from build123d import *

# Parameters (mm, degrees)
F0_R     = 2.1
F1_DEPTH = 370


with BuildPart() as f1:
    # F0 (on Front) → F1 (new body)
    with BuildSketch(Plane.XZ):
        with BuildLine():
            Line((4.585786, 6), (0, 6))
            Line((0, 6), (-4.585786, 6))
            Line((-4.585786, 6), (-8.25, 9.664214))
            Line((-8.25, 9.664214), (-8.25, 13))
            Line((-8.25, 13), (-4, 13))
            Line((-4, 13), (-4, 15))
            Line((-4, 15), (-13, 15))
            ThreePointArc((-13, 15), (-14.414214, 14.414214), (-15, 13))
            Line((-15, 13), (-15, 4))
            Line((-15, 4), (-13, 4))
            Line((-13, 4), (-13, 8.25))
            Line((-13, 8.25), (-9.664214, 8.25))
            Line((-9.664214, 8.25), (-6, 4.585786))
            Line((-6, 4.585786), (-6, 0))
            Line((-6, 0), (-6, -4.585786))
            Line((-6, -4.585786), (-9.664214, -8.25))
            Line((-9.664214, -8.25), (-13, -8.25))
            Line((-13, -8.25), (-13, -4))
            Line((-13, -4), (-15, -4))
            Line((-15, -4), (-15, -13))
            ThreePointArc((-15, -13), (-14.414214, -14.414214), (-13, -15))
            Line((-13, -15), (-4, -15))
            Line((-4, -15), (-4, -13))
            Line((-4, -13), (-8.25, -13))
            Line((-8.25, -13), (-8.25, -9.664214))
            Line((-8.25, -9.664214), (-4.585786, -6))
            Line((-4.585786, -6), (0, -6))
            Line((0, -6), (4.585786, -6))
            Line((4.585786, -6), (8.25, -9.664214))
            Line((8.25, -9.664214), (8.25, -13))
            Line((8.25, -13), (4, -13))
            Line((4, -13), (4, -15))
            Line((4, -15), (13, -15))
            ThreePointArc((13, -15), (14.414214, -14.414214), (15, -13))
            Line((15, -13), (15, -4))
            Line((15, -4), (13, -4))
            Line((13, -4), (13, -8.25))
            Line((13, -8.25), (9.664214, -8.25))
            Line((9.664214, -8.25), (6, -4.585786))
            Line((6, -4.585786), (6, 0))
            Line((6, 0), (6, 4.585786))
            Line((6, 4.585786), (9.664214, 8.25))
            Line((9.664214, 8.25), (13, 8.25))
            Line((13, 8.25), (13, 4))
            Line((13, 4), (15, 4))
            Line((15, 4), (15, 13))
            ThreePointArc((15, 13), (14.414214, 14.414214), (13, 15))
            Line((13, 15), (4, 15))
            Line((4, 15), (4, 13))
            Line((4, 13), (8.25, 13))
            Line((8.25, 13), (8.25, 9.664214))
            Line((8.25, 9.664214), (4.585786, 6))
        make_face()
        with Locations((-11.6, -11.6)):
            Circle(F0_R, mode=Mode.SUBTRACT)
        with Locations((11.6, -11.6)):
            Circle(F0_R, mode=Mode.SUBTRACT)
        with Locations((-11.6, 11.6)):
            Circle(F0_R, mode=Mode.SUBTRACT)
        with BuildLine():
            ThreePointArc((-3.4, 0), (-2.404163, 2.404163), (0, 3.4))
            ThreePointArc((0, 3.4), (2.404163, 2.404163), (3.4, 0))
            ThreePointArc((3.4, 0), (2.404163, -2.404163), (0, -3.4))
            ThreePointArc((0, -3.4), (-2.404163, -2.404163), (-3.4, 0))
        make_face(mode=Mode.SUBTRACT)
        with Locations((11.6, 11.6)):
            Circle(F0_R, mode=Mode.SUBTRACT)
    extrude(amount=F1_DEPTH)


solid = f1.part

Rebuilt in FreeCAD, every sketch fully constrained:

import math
import FreeCAD as App
import Part
import Sketcher
from FreeCAD import Vector
Q = App.Units.Quantity

doc = App.newDocument("Part")
body = doc.addObject("PartDesign::Body", "Body")

sketch1 = doc.addObject("Sketcher::SketchObject", "Sketch")
body.addObject(sketch1)
sketch1.AttachmentSupport = (doc.XZ_Plane, [""])
sketch1.MapMode = "FlatFace"
sketch1.addGeometry([
    Part.LineSegment(Vector(4.585786, 6, 0), Vector(-4.585786, 6, 0)),
    Part.LineSegment(Vector(-4.585786, 6, 0), Vector(-8.25, 9.664214, 0)),
    Part.LineSegment(Vector(-8.25, 9.664214, 0), Vector(-8.25, 13, 0)),
    Part.LineSegment(Vector(-8.25, 13, 0), Vector(-4, 13, 0)),
    Part.LineSegment(Vector(-4, 13, 0), Vector(-4, 15, 0)),
    Part.LineSegment(Vector(-4, 15, 0), Vector(-13, 15, 0)),
    Part.ArcOfCircle(Part.Circle(Vector(-13.000001, 13.000001, 0), Vector(0, 0, 1), 1.999999), math.radians(89.999957), math.radians(180.000043)),
    Part.LineSegment(Vector(-15, 13, 0), Vector(-15, 4, 0)),
    Part.LineSegment(Vector(-15, 4, 0), Vector(-13, 4, 0)),
    Part.LineSegment(Vector(-13, 4, 0), Vector(-13, 8.25, 0)),
    Part.LineSegment(Vector(-13, 8.25, 0), Vector(-9.664214, 8.25, 0)),
    Part.LineSegment(Vector(-9.664214, 8.25, 0), Vector(-6, 4.585786, 0)),
    Part.LineSegment(Vector(-6, 4.585786, 0), Vector(-6, -4.585786, 0)),
    Part.LineSegment(Vector(-6, -4.585786, 0), Vector(-9.664214, -8.25, 0)),
    Part.LineSegment(Vector(-9.664214, -8.25, 0), Vector(-13, -8.25, 0)),
    Part.LineSegment(Vector(-13, -8.25, 0), Vector(-13, -4, 0)),
    Part.LineSegment(Vector(-13, -4, 0), Vector(-15, -4, 0)),
    Part.LineSegment(Vector(-15, -4, 0), Vector(-15, -13, 0)),
    Part.ArcOfCircle(Part.Circle(Vector(-13.000001, -13.000001, 0), Vector(0, 0, 1), 1.999999), math.radians(179.999957), math.radians(270.000043)),
    Part.LineSegment(Vector(-13, -15, 0), Vector(-4, -15, 0)),
    Part.LineSegment(Vector(-4, -15, 0), Vector(-4, -13, 0)),
    Part.LineSegment(Vector(-4, -13, 0), Vector(-8.25, -13, 0)),
    Part.LineSegment(Vector(-8.25, -13, 0), Vector(-8.25, -9.664214, 0)),
    Part.LineSegment(Vector(-8.25, -9.664214, 0), Vector(-4.585786, -6, 0)),
    Part.LineSegment(Vector(-4.585786, -6, 0), Vector(4.585786, -6, 0)),
    Part.LineSegment(Vector(4.585786, -6, 0), Vector(8.25, -9.664214, 0)),
    Part.LineSegment(Vector(8.25, -9.664214, 0), Vector(8.25, -13, 0)),
    Part.LineSegment(Vector(8.25, -13, 0), Vector(4, -13, 0)),
    Part.LineSegment(Vector(4, -13, 0), Vector(4, -15, 0)),
    Part.LineSegment(Vector(4, -15, 0), Vector(13, -15, 0)),
    Part.ArcOfCircle(Part.Circle(Vector(13.000001, -13.000001, 0), Vector(0, 0, 1), 1.999999), math.radians(-90.000043), math.radians(0.000043)),
    Part.LineSegment(Vector(15, -13, 0), Vector(15, -4, 0)),
    Part.LineSegment(Vector(15, -4, 0), Vector(13, -4, 0)),
    Part.LineSegment(Vector(13, -4, 0), Vector(13, -8.25, 0)),
    Part.LineSegment(Vector(13, -8.25, 0), Vector(9.664214, -8.25, 0)),
    Part.LineSegment(Vector(9.664214, -8.25, 0), Vector(6, -4.585786, 0)),
    Part.LineSegment(Vector(6, -4.585786, 0), Vector(6, 4.585786, 0)),
    Part.LineSegment(Vector(6, 4.585786, 0), Vector(9.664214, 8.25, 0)),
    Part.LineSegment(Vector(9.664214, 8.25, 0), Vector(13, 8.25, 0)),
    Part.LineSegment(Vector(13, 8.25, 0), Vector(13, 4, 0)),
    Part.LineSegment(Vector(13, 4, 0), Vector(15, 4, 0)),
    Part.LineSegment(Vector(15, 4, 0), Vector(15, 13, 0)),
    Part.ArcOfCircle(Part.Circle(Vector(13.000001, 13.000001, 0), Vector(0, 0, 1), 1.999999), math.radians(-0.000043), math.radians(90.000043)),
    Part.LineSegment(Vector(13, 15, 0), Vector(4, 15, 0)),
    Part.LineSegment(Vector(4, 15, 0), Vector(4, 13, 0)),
    Part.LineSegment(Vector(4, 13, 0), Vector(8.25, 13, 0)),
    Part.LineSegment(Vector(8.25, 13, 0), Vector(8.25, 9.664214, 0)),
    Part.LineSegment(Vector(8.25, 9.664214, 0), Vector(4.585786, 6, 0)),
    Part.Circle(Vector(-11.6, -11.6, 0), Vector(0, 0, 1), 2.1),
    Part.Circle(Vector(11.6, -11.6, 0), Vector(0, 0, 1), 2.1),
    Part.Circle(Vector(-11.6, 11.6, 0), Vector(0, 0, 1), 2.1),
    Part.ArcOfCircle(Part.Circle(Vector(0, 0, 0), Vector(0, 0, 1), 3.4), math.radians(-179.999997), math.radians(-90.000003)),
    Part.ArcOfCircle(Part.Circle(Vector(0, 0, 0), Vector(0, 0, 1), 3.4), math.radians(90.000003), math.radians(179.999997)),
    Part.ArcOfCircle(Part.Circle(Vector(0, 0, 0), Vector(0, 0, 1), 3.4), math.radians(0.000003), math.radians(89.999997)),
    Part.ArcOfCircle(Part.Circle(Vector(0, 0, 0), Vector(0, 0, 1), 3.4), math.radians(-89.999997), math.radians(-0.000003)),
    Part.Circle(Vector(11.6, 11.6, 0), Vector(0, 0, 1), 2.1),
], False)
sketch1.addConstraint([
    Sketcher.Constraint("Coincident", 0, 2, 1, 1),
    Sketcher.Constraint("Coincident", 1, 2, 2, 1),
    Sketcher.Constraint("Coincident", 2, 2, 3, 1),
    Sketcher.Constraint("Coincident", 3, 2, 4, 1),
    Sketcher.Constraint("Coincident", 4, 2, 5, 1),
    Sketcher.Constraint("Tangent", 5, 2, 6, 1),
    Sketcher.Constraint("Tangent", 6, 2, 7, 1),
    Sketcher.Constraint("Coincident", 7, 2, 8, 1),
    Sketcher.Constraint("Coincident", 8, 2, 9, 1),
    Sketcher.Constraint("Coincident", 9, 2, 10, 1),
    Sketcher.Constraint("Coincident", 10, 2, 11, 1),
    Sketcher.Constraint("Coincident", 11, 2, 12, 1),
    Sketcher.Constraint("Coincident", 12, 2, 13, 1),
    Sketcher.Constraint("Coincident", 13, 2, 14, 1),
    Sketcher.Constraint("Coincident", 14, 2, 15, 1),
    Sketcher.Constraint("Coincident", 15, 2, 16, 1),
    Sketcher.Constraint("Coincident", 16, 2, 17, 1),
    Sketcher.Constraint("Tangent", 17, 2, 18, 1),
    Sketcher.Constraint("Tangent", 18, 2, 19, 1),
    Sketcher.Constraint("Coincident", 19, 2, 20, 1),
    Sketcher.Constraint("Coincident", 20, 2, 21, 1),
    Sketcher.Constraint("Coincident", 21, 2, 22, 1),
    Sketcher.Constraint("Coincident", 22, 2, 23, 1),
    Sketcher.Constraint("Coincident", 23, 2, 24, 1),
    Sketcher.Constraint("Coincident", 24, 2, 25, 1),
    Sketcher.Constraint("Coincident", 25, 2, 26, 1),
    Sketcher.Constraint("Coincident", 26, 2, 27, 1),
    Sketcher.Constraint("Coincident", 27, 2, 28, 1),
    Sketcher.Constraint("Coincident", 28, 2, 29, 1),
    Sketcher.Constraint("Tangent", 29, 2, 30, 1),
    Sketcher.Constraint("Tangent", 30, 2, 31, 1),
    Sketcher.Constraint("Coincident", 31, 2, 32, 1),
    Sketcher.Constraint("Coincident", 32, 2, 33, 1),
    Sketcher.Constraint("Coincident", 33, 2, 34, 1),
    Sketcher.Constraint("Coincident", 34, 2, 35, 1),
    Sketcher.Constraint("Coincident", 35, 2, 36, 1),
    Sketcher.Constraint("Coincident", 36, 2, 37, 1),
    Sketcher.Constraint("Coincident", 37, 2, 38, 1),
    Sketcher.Constraint("Coincident", 38, 2, 39, 1),
    Sketcher.Constraint("Coincident", 39, 2, 40, 1),
    Sketcher.Constraint("Coincident", 40, 2, 41, 1),
    Sketcher.Constraint("Tangent", 41, 2, 42, 1),
    Sketcher.Constraint("Tangent", 42, 2, 43, 1),
    Sketcher.Constraint("Coincident", 43, 2, 44, 1),
    Sketcher.Constraint("Coincident", 44, 2, 45, 1),
    Sketcher.Constraint("Coincident", 45, 2, 46, 1),
    Sketcher.Constraint("Coincident", 46, 2, 47, 1),
    Sketcher.Constraint("Coincident", 47, 2, 0, 1),
    Sketcher.Constraint("Tangent", 51, 1, 52, 2),
    Sketcher.Constraint("Tangent", 52, 1, 53, 2),
    Sketcher.Constraint("Tangent", 53, 1, 54, 2),
    Sketcher.Constraint("Tangent", 54, 1, 51, 2),
    Sketcher.Constraint("Horizontal", 0),
    Sketcher.Constraint("Vertical", 2),
    Sketcher.Constraint("Horizontal", 3),
    Sketcher.Constraint("Vertical", 4),
    Sketcher.Constraint("Horizontal", 5),
    Sketcher.Constraint("Vertical", 7),
    Sketcher.Constraint("Horizontal", 8),
    Sketcher.Constraint("Vertical", 9),
    Sketcher.Constraint("Horizontal", 10),
    Sketcher.Constraint("Vertical", 12),
    Sketcher.Constraint("Horizontal", 14),
    Sketcher.Constraint("Vertical", 15),
    Sketcher.Constraint("Horizontal", 16),
    Sketcher.Constraint("Vertical", 17),
    Sketcher.Constraint("Horizontal", 19),
    Sketcher.Constraint("Vertical", 20),
    Sketcher.Constraint("Horizontal", 21),
    Sketcher.Constraint("Vertical", 22),
    Sketcher.Constraint("Horizontal", 24),
    Sketcher.Constraint("Vertical", 26),
    Sketcher.Constraint("Horizontal", 27),
    Sketcher.Constraint("Vertical", 28),
    Sketcher.Constraint("Horizontal", 29),
    Sketcher.Constraint("Vertical", 31),
    Sketcher.Constraint("Horizontal", 32),
    Sketcher.Constraint("Vertical", 33),
    Sketcher.Constraint("Horizontal", 34),
    Sketcher.Constraint("Vertical", 36),
    Sketcher.Constraint("Horizontal", 38),
    Sketcher.Constraint("Vertical", 39),
    Sketcher.Constraint("Horizontal", 40),
    Sketcher.Constraint("Vertical", 41),
    Sketcher.Constraint("Horizontal", 43),
    Sketcher.Constraint("Vertical", 44),
    Sketcher.Constraint("Horizontal", 45),
    Sketcher.Constraint("Vertical", 46),
    Sketcher.Constraint("Coincident", 51, 3, -1, 1),
    Sketcher.Constraint("Equal", 6, 18),
    Sketcher.Constraint("Equal", 18, 30),
    Sketcher.Constraint("Equal", 30, 42),
    Sketcher.Constraint("Equal", 48, 49),
    Sketcher.Constraint("Equal", 49, 50),
    Sketcher.Constraint("Equal", 51, 52),
    Sketcher.Constraint("Equal", 50, 55),
    Sketcher.Constraint("Symmetric", 6, 3, 30, 3, -1, 1),
    Sketcher.Constraint("Symmetric", 18, 3, 42, 3, -1, 1),
    Sketcher.Constraint("Symmetric", 49, 3, 50, 3, -1, 1),
    Sketcher.Constraint("Symmetric", 48, 3, 55, 3, -1, 1),
    Sketcher.Constraint("Symmetric", 0, 2, 24, 2, -1, 1),
    Sketcher.Constraint("Symmetric", 1, 2, 25, 2, -1, 1),
    Sketcher.Constraint("Symmetric", 3, 2, 27, 2, -1, 1),
    Sketcher.Constraint("Symmetric", 8, 2, 32, 2, -1, 1),
    Sketcher.Constraint("Symmetric", 10, 2, 34, 2, -1, 1),
    Sketcher.Constraint("Symmetric", 11, 2, 35, 2, -1, 1),
    Sketcher.Constraint("Symmetric", 13, 2, 37, 2, -1, 1),
    Sketcher.Constraint("Symmetric", 15, 2, 39, 2, -1, 1),
    Sketcher.Constraint("Symmetric", 20, 2, 44, 2, -1, 1),
    Sketcher.Constraint("Symmetric", 22, 2, 46, 2, -1, 1),
    Sketcher.Constraint("Symmetric", 18, 3, 30, 3, -2),
    Sketcher.Constraint("Symmetric", 48, 3, 49, 3, -2),
    Sketcher.Constraint("Symmetric", 22, 2, 25, 2, -2),
    Sketcher.Constraint("Symmetric", 20, 2, 27, 2, -2),
    Sketcher.Constraint("Symmetric", 15, 2, 32, 2, -2),
    Sketcher.Constraint("Symmetric", 13, 2, 34, 2, -2),
    Sketcher.Constraint("PointOnObject", 51, 1, -1),
    Sketcher.Constraint("PointOnObject", 52, 1, -2),
    Sketcher.Constraint("PointOnObject", 53, 1, -1),
    Sketcher.Constraint("PointOnObject", 54, 1, -2),
    Sketcher.Constraint("Parallel", 1, 11),
    Sketcher.Constraint("Perpendicular", 11, 13),
    Sketcher.Constraint("Parallel", 13, 23),
    Sketcher.Constraint("Perpendicular", 35, 37),
    Sketcher.Constraint("Parallel", 37, 47),
    Sketcher.Constraint("Horizontal", 42, 3, 2, 2),
    Sketcher.Constraint("Horizontal", 12, 2, 35, 2),
    Sketcher.Constraint("Vertical", 5, 2, 8, 2),
    Sketcher.Constraint("Equal", 38, 2),
    Sketcher.Constraint("Equal", 43, 7),
    Sketcher.Constraint("Equal", 45, 9),
    Sketcher.Constraint("Equal", 24, 12),
    Sketcher.Constraint("Equal", 1, 11),
    Sketcher.Constraint("Radius", 6, Q("1.999999 mm")),
    Sketcher.Constraint("Diameter", 48, Q("4.2 mm")),
    Sketcher.Constraint("Radius", 51, Q("3.4 mm")),
    Sketcher.Constraint("DistanceX", 5, 2, 5, 1, Q("9 mm")),
    Sketcher.Constraint("DistanceX", 6, 3, -1, 1, Q("13.000001 mm")),
    Sketcher.Constraint("DistanceY", -1, 1, 0, 2, Q("6 mm")),
    Sketcher.Constraint("DistanceX", 3, 1, 3, 2, Q("4.25 mm")),
    Sketcher.Constraint("DistanceX", 48, 3, -1, 1, Q("11.6 mm")),
    Sketcher.Constraint("DistanceY", 48, 3, -1, 1, Q("11.6 mm")),
    Sketcher.Constraint("Distance", 1, Q("5.181981 mm")),
])
pad1 = doc.addObject("PartDesign::Pad", "Pad")
body.addObject(pad1)
pad1.Profile = sketch1
pad1.Length = 370

doc.recompute()
